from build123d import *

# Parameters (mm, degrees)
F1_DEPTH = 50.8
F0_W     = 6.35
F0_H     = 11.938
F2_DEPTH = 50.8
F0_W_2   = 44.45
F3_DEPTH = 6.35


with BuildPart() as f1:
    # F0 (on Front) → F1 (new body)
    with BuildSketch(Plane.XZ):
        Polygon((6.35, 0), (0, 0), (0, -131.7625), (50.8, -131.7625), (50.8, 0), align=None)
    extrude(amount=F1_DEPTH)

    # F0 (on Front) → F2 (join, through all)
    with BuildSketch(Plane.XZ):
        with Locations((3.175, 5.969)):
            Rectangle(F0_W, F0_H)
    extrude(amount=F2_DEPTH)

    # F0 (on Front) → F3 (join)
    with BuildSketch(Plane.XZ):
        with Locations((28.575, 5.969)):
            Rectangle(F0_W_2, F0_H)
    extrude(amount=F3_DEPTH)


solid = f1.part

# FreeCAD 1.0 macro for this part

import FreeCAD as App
import Part
import Sketcher
Q = App.Units.Quantity


def add_polygon(sketch, points):
    """Adds a closed chain of lines whose ends are joined by coincident constraints."""
    first, n = sketch.GeometryCount, len(points)
    for a, b in zip(points, points[1:] + points[:1]):
        sketch.addGeometry(Part.LineSegment(App.Vector(*a, 0), App.Vector(*b, 0)), False)
    for i in range(n):
        sketch.addConstraint(Sketcher.Constraint("Coincident", first + i, 2, first + (i + 1) % n, 1))

doc = App.newDocument("Part")
params = doc.addObject("Spreadsheet::Sheet", "Params")
for row, (alias, value) in enumerate([
    ("sketch1_width", "2 in"),
    ("sketch1_height", "5.1875 in"),
    ("pad1_length", "2 in"),
    ("sketch2_width", "0.25 in"),
    ("sketch2_height", "0.47 in"),
    ("pad2_length", "2 in"),
    ("sketch3_width", "1.75 in"),
    ("sketch3_height", "0.47 in"),
    ("pad3_length", "0.25 in"),
], start=1):
    params.set(f"A{row}", alias)
    params.set(f"B{row}", "=" + value)
    params.setAlias(f"B{row}", alias)

body = doc.addObject("PartDesign::Body", "Body")

sketch1 = body.newObject("Sketcher::SketchObject", "Sketch")
sketch1.AttachmentSupport = (doc.getObject("XZ_Plane"), [""])
sketch1.MapMode = "FlatFace"
add_polygon(sketch1, [(0, 0), (0, -132), (51, -132), (51, 0)])
sketch1.addConstraint(Sketcher.Constraint("Vertical", 0))
sketch1.addConstraint(Sketcher.Constraint("Horizontal", 1))
sketch1.addConstraint(Sketcher.Constraint("Vertical", 2))
sketch1.addConstraint(Sketcher.Constraint("Horizontal", 3))
sketch1.addConstraint(Sketcher.Constraint("Coincident", 3, 2, -1, 1))
sketch1.addConstraint(Sketcher.Constraint("DistanceX", 1, 1, 1, 2, Q("2 in")))
sketch1.addConstraint(Sketcher.Constraint("DistanceY", 0, 2, 0, 1, Q("5.1875 in")))
sketch1.setExpression("Constraints[9]", "Params.sketch1_width")
sketch1.setExpression("Constraints[10]", "Params.sketch1_height")
pad1 = body.newObject("PartDesign::Pad", "Pad")
pad1.Profile = sketch1
pad1.setExpression("Length", "Params.pad1_length")

sketch2 = body.newObject("Sketcher::SketchObject", "Sketch001")
sketch2.AttachmentSupport = (doc.getObject("XZ_Plane"), [""])
sketch2.MapMode = "FlatFace"
add_polygon(sketch2, [(0, 12), (0, 0), (6, 0), (6, 12)])
sketch2.addConstraint(Sketcher.Constraint("Vertical", 0))
sketch2.addConstraint(Sketcher.Constraint("Horizontal", 1))
sketch2.addConstraint(Sketcher.Constraint("Vertical", 2))
sketch2.addConstraint(Sketcher.Constraint("Horizontal", 3))
sketch2.addConstraint(Sketcher.Constraint("Coincident", 0, 2, -1, 1))
sketch2.addConstraint(Sketcher.Constraint("DistanceX", 1, 1, 1, 2, Q("0.25 in")))
sketch2.addConstraint(Sketcher.Constraint("DistanceY", 0, 2, 0, 1, Q("0.47 in")))
sketch2.setExpression("Constraints[9]", "Params.sketch2_width")
sketch2.setExpression("Constraints[10]", "Params.sketch2_height")
pad2 = body.newObject("PartDesign::Pad", "Pad001")
pad2.Profile = sketch2
pad2.setExpression("Length", "Params.pad2_length")

sketch3 = body.newObject("Sketcher::SketchObject", "Sketch002")
sketch3.AttachmentSupport = (doc.getObject("XZ_Plane"), [""])
sketch3.MapMode = "FlatFace"
add_polygon(sketch3, [(6, 12), (6, 0), (51, 0), (51, 12)])
sketch3.addConstraint(Sketcher.Constraint("Vertical", 0))
sketch3.addConstraint(Sketcher.Constraint("Horizontal", 1))
sketch3.addConstraint(Sketcher.Constraint("Vertical", 2))
sketch3.addConstraint(Sketcher.Constraint("Horizontal", 3))
sketch3.addConstraint(Sketcher.Constraint("PointOnObject", 0, 2, -1))
sketch3.addConstraint(Sketcher.Constraint("DistanceX", -1, 1, 1, 2, Q("2 in")))
sketch3.addConstraint(Sketcher.Constraint("DistanceX", 1, 1, 1, 2, Q("1.75 in")))
sketch3.addConstraint(Sketcher.Constraint("DistanceY", 0, 2, 0, 1, Q("0.47 in")))
sketch3.setExpression("Constraints[10]", "Params.sketch3_width")
sketch3.setExpression("Constraints[11]", "Params.sketch3_height")
pad3 = body.newObject("PartDesign::Pad", "Pad002")
pad3.Profile = sketch3
pad3.setExpression("Length", "Params.pad3_length")

doc.recompute()
